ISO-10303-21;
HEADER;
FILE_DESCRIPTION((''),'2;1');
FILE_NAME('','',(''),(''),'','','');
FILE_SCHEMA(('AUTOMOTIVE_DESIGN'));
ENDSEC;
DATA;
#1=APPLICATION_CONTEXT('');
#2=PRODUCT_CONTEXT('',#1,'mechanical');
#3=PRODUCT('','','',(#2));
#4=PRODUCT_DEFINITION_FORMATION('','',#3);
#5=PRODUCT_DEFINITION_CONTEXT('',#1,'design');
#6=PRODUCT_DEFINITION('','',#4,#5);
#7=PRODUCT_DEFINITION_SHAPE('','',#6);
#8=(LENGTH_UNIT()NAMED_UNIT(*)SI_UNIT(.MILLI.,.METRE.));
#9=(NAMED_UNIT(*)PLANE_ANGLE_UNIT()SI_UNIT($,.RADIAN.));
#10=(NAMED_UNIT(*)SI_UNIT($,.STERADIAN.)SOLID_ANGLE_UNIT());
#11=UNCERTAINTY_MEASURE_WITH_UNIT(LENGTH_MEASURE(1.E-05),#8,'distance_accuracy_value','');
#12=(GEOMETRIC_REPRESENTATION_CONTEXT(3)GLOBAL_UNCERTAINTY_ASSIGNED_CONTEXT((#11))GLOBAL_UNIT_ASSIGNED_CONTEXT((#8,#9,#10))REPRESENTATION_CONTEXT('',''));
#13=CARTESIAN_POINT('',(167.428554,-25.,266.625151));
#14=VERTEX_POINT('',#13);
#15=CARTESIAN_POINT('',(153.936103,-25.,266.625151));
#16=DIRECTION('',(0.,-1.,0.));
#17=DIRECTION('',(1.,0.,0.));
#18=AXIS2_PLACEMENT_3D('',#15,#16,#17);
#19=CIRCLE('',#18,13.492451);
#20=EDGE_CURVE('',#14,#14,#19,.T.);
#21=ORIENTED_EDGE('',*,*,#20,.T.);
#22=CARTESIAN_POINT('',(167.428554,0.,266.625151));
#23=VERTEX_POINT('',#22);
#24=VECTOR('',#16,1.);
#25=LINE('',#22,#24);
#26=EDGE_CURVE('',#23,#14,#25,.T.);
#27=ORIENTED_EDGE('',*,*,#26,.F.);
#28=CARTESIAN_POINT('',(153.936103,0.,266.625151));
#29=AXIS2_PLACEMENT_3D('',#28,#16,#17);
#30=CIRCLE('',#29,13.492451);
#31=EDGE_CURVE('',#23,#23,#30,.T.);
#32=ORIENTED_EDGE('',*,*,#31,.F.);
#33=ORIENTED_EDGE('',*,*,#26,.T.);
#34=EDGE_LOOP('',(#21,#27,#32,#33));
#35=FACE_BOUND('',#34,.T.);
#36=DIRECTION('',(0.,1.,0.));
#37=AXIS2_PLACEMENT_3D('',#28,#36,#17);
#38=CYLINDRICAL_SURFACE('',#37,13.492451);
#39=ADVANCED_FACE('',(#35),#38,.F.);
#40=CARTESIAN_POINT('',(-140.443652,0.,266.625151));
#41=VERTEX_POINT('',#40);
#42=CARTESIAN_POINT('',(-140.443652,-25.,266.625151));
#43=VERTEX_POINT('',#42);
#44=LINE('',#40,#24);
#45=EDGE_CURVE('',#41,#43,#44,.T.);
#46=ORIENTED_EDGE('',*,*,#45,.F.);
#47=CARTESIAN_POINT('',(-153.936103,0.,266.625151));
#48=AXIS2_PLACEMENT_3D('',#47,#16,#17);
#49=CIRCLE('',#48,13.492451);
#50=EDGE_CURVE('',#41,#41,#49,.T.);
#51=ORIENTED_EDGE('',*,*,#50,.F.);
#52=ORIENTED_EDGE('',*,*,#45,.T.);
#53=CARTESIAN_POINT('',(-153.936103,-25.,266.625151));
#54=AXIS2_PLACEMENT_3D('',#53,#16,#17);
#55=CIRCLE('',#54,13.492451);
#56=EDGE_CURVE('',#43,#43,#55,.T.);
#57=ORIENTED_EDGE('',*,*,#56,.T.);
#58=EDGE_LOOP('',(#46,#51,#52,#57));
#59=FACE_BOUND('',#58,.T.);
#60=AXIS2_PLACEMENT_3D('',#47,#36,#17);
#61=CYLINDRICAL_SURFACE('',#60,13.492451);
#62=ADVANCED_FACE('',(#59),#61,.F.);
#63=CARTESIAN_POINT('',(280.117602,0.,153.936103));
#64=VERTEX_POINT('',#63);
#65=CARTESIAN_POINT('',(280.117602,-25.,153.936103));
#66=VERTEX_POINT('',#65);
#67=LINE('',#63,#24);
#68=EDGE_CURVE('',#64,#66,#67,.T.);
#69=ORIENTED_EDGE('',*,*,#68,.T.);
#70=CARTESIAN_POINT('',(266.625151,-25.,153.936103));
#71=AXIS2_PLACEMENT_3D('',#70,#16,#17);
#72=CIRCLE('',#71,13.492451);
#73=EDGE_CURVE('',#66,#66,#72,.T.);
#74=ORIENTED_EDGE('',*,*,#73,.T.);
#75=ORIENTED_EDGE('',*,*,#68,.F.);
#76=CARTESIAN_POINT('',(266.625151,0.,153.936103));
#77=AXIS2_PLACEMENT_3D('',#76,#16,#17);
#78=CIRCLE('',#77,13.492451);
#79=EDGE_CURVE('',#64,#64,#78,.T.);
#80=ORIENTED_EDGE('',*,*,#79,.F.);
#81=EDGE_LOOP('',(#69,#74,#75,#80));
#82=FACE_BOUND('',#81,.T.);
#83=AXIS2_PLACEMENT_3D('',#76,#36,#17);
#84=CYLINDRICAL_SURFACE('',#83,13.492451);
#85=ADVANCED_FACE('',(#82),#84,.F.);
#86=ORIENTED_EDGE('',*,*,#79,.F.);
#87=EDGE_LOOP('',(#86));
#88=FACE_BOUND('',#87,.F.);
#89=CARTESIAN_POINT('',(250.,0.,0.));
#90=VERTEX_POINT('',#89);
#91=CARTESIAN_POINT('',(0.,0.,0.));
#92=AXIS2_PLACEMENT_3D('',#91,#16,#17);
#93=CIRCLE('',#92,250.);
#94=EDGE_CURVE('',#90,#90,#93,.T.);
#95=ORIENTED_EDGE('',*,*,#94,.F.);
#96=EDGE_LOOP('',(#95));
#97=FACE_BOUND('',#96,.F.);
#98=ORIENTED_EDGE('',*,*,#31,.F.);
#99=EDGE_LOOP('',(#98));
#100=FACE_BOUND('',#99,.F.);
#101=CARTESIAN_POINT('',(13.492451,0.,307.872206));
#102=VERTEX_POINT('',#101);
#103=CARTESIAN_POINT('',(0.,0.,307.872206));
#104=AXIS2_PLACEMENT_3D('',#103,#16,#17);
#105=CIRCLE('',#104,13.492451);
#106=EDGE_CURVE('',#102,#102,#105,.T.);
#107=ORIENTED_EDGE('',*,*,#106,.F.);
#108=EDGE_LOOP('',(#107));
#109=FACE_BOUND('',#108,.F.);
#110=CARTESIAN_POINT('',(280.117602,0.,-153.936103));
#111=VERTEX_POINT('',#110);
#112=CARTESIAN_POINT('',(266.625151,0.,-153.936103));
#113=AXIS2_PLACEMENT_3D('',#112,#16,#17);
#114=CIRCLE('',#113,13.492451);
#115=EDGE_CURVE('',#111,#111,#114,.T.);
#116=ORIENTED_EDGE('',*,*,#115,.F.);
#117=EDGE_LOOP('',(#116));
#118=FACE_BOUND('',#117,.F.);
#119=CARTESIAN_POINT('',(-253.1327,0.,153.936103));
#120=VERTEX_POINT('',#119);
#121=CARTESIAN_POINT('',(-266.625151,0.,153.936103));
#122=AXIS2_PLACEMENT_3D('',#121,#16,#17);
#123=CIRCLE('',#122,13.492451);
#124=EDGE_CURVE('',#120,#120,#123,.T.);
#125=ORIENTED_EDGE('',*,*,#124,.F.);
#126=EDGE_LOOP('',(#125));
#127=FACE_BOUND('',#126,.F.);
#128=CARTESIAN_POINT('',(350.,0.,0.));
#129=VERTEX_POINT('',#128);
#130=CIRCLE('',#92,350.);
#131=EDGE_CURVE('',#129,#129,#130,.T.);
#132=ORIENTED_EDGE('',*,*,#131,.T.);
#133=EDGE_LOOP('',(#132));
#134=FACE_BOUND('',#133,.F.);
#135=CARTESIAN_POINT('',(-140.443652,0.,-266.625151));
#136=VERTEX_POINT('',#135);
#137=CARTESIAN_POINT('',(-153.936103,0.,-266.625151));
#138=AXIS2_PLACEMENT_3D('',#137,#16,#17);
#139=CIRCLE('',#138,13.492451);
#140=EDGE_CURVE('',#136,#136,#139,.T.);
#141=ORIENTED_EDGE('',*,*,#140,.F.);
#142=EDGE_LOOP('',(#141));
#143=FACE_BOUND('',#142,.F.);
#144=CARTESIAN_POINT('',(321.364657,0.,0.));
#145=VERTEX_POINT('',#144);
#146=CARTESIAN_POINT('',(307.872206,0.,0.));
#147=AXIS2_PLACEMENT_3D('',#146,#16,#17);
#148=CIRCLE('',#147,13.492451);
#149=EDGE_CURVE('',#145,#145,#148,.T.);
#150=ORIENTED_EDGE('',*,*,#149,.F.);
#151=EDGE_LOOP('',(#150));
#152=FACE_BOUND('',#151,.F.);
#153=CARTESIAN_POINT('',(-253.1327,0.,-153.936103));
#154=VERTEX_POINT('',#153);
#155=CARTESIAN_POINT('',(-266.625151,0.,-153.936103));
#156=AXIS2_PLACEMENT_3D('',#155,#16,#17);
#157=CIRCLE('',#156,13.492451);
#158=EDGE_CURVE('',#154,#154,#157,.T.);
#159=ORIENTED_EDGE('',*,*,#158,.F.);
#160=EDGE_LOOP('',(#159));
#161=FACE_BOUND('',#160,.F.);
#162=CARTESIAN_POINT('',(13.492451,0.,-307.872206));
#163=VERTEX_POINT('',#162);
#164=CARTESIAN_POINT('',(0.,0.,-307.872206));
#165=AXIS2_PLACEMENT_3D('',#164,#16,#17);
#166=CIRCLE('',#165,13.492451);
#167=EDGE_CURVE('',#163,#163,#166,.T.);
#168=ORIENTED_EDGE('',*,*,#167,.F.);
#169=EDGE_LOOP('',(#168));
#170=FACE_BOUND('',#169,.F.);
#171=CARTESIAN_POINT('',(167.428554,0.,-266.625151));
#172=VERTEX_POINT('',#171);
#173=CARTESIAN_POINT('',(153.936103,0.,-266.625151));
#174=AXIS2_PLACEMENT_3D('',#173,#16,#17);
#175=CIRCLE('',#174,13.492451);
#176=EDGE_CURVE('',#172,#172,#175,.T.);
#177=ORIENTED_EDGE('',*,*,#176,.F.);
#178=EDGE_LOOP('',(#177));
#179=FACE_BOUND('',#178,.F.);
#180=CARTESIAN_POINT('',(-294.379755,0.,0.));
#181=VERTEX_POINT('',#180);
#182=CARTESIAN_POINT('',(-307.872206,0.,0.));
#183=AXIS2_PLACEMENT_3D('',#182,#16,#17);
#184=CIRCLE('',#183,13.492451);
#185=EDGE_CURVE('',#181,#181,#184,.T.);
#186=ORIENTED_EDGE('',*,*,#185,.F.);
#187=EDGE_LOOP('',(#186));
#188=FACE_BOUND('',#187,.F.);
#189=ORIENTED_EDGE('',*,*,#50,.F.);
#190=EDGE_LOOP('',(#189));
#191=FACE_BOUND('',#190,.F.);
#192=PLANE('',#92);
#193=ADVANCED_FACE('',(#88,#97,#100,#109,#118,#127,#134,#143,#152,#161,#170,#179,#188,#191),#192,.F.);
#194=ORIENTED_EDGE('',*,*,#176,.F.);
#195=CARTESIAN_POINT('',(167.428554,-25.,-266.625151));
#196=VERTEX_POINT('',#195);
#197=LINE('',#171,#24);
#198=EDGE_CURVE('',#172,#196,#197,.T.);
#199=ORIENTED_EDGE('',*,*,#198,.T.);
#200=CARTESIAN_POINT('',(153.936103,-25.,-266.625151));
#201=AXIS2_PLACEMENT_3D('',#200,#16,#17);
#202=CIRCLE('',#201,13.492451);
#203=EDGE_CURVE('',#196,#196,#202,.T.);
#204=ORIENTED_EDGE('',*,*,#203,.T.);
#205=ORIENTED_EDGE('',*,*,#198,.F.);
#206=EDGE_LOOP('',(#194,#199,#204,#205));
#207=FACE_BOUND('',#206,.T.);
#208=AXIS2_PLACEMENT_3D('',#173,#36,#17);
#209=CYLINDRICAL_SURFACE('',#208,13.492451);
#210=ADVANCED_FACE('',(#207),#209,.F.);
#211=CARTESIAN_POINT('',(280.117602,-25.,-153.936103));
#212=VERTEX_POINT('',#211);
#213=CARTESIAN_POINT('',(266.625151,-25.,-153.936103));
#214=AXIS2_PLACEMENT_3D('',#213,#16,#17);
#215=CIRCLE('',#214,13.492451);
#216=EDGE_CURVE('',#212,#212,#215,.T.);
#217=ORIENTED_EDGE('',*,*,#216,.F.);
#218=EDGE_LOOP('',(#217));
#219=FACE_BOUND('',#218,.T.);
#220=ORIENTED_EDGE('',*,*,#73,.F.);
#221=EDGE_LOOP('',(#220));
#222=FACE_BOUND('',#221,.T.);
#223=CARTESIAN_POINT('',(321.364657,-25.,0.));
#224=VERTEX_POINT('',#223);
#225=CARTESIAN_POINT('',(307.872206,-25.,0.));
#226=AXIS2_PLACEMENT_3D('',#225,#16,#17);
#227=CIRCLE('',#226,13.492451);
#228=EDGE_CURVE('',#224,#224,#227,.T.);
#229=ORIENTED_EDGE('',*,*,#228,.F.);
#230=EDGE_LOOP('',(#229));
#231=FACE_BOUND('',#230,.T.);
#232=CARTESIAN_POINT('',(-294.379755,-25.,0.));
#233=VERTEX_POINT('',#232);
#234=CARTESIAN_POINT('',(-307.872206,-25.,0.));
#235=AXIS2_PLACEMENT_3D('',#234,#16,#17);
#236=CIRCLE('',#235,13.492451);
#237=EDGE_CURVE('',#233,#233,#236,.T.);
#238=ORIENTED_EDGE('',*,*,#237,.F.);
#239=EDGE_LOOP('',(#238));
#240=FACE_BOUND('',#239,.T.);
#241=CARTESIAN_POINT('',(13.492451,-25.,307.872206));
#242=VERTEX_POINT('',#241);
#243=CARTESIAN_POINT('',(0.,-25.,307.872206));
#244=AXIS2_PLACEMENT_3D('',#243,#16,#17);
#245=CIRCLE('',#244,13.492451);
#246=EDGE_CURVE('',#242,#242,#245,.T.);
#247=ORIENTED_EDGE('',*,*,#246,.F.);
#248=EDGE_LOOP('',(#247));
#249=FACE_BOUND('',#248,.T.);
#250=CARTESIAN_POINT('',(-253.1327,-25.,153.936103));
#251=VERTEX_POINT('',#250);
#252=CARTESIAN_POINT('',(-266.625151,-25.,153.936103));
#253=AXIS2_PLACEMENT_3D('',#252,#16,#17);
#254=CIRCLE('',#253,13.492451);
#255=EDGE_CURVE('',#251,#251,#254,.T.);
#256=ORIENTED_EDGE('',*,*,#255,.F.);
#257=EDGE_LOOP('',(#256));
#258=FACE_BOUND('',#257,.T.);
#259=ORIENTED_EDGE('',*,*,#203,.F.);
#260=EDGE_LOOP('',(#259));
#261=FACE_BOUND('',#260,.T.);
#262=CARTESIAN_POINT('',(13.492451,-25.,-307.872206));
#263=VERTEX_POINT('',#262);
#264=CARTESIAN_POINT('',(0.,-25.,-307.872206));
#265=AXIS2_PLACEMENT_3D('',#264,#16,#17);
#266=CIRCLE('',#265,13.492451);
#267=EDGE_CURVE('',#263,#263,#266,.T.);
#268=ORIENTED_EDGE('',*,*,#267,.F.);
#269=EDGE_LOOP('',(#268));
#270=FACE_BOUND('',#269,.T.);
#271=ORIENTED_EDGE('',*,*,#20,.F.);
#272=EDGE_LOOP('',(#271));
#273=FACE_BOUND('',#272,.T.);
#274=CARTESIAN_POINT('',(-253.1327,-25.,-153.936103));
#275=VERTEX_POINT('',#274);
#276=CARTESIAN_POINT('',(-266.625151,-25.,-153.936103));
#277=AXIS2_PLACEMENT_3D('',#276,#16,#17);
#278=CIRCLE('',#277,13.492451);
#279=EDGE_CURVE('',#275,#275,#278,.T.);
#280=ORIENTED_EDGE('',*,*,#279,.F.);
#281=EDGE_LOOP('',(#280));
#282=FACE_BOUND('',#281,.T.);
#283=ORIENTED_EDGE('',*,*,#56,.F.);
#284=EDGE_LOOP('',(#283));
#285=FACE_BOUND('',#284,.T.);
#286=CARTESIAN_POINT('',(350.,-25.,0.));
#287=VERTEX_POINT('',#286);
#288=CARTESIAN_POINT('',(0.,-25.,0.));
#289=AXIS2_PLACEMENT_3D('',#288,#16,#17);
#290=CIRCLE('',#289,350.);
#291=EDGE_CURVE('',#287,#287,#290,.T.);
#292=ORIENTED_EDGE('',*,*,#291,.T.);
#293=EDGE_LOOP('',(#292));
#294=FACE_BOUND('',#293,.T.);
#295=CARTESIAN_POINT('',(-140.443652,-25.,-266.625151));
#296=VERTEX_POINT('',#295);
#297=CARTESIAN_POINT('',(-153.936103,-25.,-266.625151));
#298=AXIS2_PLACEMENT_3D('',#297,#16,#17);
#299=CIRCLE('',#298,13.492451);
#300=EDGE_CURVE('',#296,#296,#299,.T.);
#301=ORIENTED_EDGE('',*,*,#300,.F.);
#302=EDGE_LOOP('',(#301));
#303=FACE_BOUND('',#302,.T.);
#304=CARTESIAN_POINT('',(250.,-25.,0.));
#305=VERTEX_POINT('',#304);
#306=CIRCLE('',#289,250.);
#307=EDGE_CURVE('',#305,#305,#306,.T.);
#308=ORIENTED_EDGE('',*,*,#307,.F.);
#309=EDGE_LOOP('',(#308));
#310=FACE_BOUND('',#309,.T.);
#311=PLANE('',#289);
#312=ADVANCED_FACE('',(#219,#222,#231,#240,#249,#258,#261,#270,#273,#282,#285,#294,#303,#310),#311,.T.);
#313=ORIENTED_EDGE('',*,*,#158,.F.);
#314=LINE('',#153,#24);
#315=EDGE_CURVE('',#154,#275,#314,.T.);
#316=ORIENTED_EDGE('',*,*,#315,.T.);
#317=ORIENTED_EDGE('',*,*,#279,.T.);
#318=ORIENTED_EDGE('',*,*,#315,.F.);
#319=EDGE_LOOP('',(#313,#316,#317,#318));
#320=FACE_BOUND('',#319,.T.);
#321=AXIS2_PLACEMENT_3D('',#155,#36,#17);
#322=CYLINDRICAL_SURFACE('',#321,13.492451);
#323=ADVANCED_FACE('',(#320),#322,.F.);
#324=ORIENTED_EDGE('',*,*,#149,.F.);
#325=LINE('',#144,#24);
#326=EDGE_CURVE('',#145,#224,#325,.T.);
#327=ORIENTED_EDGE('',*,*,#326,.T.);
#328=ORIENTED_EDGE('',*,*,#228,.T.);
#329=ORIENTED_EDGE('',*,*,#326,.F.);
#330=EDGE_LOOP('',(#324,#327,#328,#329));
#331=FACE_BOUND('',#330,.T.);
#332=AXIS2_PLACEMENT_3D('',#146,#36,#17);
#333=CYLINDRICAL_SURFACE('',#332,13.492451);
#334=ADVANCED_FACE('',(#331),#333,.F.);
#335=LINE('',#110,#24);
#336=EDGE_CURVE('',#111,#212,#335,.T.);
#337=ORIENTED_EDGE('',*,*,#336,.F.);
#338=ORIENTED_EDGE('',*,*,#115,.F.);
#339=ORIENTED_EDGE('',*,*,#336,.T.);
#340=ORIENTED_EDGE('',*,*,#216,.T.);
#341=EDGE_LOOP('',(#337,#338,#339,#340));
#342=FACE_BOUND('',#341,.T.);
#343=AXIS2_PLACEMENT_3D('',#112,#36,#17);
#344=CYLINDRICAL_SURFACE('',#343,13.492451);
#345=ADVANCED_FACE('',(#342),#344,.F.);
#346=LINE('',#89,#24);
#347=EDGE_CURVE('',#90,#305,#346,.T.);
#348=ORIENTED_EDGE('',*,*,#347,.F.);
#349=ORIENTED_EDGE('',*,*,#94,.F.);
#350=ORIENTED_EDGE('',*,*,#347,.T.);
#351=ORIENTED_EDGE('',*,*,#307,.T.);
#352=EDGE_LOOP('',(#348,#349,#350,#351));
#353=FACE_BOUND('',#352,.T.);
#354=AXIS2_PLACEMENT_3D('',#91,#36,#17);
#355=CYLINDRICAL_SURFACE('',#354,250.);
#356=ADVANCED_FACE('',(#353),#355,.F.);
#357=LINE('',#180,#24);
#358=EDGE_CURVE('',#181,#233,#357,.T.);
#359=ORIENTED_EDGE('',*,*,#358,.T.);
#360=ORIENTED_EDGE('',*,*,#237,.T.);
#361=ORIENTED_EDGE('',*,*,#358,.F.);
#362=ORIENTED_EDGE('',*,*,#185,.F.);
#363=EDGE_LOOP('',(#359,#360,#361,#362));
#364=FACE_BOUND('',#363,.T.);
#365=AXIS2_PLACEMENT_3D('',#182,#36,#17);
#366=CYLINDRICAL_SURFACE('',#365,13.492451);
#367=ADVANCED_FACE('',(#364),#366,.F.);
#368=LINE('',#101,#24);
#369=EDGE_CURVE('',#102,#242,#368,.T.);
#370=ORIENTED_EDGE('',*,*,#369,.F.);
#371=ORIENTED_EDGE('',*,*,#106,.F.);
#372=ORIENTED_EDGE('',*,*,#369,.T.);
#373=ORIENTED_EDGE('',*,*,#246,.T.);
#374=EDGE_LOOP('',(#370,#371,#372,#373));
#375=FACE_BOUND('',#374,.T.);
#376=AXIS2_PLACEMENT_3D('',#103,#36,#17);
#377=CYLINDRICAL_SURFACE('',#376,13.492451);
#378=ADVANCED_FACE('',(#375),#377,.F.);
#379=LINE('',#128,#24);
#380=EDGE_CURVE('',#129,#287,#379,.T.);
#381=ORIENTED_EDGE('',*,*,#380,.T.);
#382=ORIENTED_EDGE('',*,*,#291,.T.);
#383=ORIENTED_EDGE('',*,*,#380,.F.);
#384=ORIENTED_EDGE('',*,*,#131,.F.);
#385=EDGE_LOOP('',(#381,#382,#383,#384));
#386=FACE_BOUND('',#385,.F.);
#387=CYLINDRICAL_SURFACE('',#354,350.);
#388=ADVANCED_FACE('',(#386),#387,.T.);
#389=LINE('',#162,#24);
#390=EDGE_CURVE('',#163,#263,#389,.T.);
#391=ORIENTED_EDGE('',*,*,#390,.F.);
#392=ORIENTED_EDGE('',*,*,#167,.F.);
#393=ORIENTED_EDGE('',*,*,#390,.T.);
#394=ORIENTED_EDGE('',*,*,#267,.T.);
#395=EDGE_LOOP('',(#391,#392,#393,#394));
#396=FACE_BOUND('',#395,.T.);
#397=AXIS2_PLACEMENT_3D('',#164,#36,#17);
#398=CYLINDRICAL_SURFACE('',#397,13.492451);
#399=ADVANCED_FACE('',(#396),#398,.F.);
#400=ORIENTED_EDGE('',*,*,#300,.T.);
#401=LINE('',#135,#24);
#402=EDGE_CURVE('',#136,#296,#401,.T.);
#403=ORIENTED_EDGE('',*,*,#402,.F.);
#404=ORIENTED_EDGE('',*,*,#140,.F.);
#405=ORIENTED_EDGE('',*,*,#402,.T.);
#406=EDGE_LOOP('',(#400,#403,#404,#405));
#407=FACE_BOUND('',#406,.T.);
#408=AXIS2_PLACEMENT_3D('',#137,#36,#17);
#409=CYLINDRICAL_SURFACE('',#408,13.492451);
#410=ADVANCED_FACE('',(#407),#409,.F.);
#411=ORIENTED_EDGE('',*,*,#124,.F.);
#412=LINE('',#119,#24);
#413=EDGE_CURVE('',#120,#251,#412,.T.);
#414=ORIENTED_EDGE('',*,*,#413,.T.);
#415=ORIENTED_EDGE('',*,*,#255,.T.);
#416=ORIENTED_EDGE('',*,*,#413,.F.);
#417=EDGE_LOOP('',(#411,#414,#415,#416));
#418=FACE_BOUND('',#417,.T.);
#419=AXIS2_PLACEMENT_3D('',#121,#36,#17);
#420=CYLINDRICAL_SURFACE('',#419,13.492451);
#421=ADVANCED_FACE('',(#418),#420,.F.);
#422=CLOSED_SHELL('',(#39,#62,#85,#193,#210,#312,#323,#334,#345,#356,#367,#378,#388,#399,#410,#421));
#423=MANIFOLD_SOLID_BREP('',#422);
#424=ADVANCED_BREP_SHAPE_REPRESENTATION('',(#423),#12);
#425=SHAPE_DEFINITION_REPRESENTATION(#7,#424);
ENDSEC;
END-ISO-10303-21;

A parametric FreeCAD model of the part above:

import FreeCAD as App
import Part
import Sketcher

doc = App.newDocument("Part")
params = doc.addObject("Spreadsheet::Sheet", "Params")
for row, (alias, value) in enumerate([
    ("sketch1_diameter", "700 mm"),
    ("sketch1_diameter2", "500 mm"),
    ("pad1_length", "25 mm"),
], start=1):
    params.set(f"A{row}", alias)
    params.set(f"B{row}", "=" + value)
    params.setAlias(f"B{row}", alias)

body = doc.addObject("PartDesign::Body", "Body")

sketch1 = doc.addObject("Sketcher::SketchObject", "Sketch")
body.addObject(sketch1)
sketch1.AttachmentSupport = (doc.XZ_Plane, [""])
sketch1.MapMode = "FlatFace"
sketch1.addGeometry([
    Part.Circle(App.Vector(0, 0, 0), App.Vector(0, 0, 1), 350),
    Part.Circle(App.Vector(-153.936103, -266.625151, 0), App.Vector(0, 0, 1), 13.492451),
    Part.Circle(App.Vector(-266.625151, -153.936103, 0), App.Vector(0, 0, 1), 13.492451),
    Part.Circle(App.Vector(0, -307.872206, 0), App.Vector(0, 0, 1), 13.492451),
    Part.Circle(App.Vector(153.936103, -266.625151, 0), App.Vector(0, 0, 1), 13.492451),
    Part.Circle(App.Vector(0, 0, 0), App.Vector(0, 0, 1), 250),
    Part.Circle(App.Vector(266.625151, -153.936103, 0), App.Vector(0, 0, 1), 13.492451),
    Part.Circle(App.Vector(-307.872206, 0, 0), App.Vector(0, 0, 1), 13.492451),
    Part.Circle(App.Vector(-266.625151, 153.936103, 0), App.Vector(0, 0, 1), 13.492451),
    Part.Circle(App.Vector(-153.936103, 266.625151, 0), App.Vector(0, 0, 1), 13.492451),
    Part.Circle(App.Vector(307.872206, 0, 0), App.Vector(0, 0, 1), 13.492451),
    Part.Circle(App.Vector(266.625151, 153.936103, 0), App.Vector(0, 0, 1), 13.492451),
    Part.Circle(App.Vector(0, 307.872206, 0), App.Vector(0, 0, 1), 13.492451),
    Part.Circle(App.Vector(153.936103, 266.625151, 0), App.Vector(0, 0, 1), 13.492451),
], False)
sketch1.addConstraint([
    Sketcher.Constraint("Coincident", 0, 3, -1, 1),
    Sketcher.Constraint("Coincident", 5, 3, -1, 1),
    Sketcher.Constraint("Equal", 1, 2),
    Sketcher.Constraint("Equal", 2, 3),
    Sketcher.Constraint("Equal", 3, 4),
    Sketcher.Constraint("Equal", 4, 6),
    Sketcher.Constraint("Equal", 6, 7),
    Sketcher.Constraint("Equal", 7, 8),
    Sketcher.Constraint("Equal", 8, 9),
    Sketcher.Constraint("Equal", 9, 10),
    Sketcher.Constraint("Equal", 10, 11),
    Sketcher.Constraint("Equal", 11, 12),
    Sketcher.Constraint("Equal", 12, 13),
    Sketcher.Constraint("Symmetric", 6, 3, 8, 3, -1, 1),
    Sketcher.Constraint("Symmetric", 4, 3, 9, 3, -1, 1),
    Sketcher.Constraint("Symmetric", 7, 3, 10, 3, -1, 1),
    Sketcher.Constraint("Symmetric", 2, 3, 11, 3, -1, 1),
    Sketcher.Constraint("Symmetric", 3, 3, 12, 3, -1, 1),
    Sketcher.Constraint("Symmetric", 1, 3, 13, 3, -1, 1),
    Sketcher.Constraint("Symmetric", 1, 3, 4, 3, -2),
    Sketcher.Constraint("Symmetric", 2, 3, 6, 3, -2),
    Sketcher.Constraint("PointOnObject", 3, 3, -2),
    Sketcher.Constraint("PointOnObject", 7, 3, -1),
    Sketcher.Constraint("Diameter", 0, 700.0),
    Sketcher.Constraint("Diameter", 5, 500.0),
    Sketcher.Constraint("Diameter", 1, 26.984902),
    Sketcher.Constraint("DistanceY", 1, 3, -1, 1, 266.625151),
    Sketcher.Constraint("DistanceX", 2, 3, -1, 1, 266.625151),
    Sketcher.Constraint("DistanceX", 2, 3, 1, 3, 112.689048),
    Sketcher.Constraint("DistanceY", 1, 3, 2, 3, 112.689048),
    Sketcher.Constraint("DistanceY", 3, 3, -1, 1, 307.872206),
    Sketcher.Constraint("DistanceX", 7, 3, -1, 1, 307.872206),
])
sketch1.setExpression("Constraints[23]", "Params.sketch1_diameter")
sketch1.setExpression("Constraints[24]", "Params.sketch1_diameter2")
pad1 = doc.addObject("PartDesign::Pad", "Pad")
body.addObject(pad1)
pad1.Profile = sketch1
pad1.setExpression("Length", "Params.pad1_length")

doc.recompute()
